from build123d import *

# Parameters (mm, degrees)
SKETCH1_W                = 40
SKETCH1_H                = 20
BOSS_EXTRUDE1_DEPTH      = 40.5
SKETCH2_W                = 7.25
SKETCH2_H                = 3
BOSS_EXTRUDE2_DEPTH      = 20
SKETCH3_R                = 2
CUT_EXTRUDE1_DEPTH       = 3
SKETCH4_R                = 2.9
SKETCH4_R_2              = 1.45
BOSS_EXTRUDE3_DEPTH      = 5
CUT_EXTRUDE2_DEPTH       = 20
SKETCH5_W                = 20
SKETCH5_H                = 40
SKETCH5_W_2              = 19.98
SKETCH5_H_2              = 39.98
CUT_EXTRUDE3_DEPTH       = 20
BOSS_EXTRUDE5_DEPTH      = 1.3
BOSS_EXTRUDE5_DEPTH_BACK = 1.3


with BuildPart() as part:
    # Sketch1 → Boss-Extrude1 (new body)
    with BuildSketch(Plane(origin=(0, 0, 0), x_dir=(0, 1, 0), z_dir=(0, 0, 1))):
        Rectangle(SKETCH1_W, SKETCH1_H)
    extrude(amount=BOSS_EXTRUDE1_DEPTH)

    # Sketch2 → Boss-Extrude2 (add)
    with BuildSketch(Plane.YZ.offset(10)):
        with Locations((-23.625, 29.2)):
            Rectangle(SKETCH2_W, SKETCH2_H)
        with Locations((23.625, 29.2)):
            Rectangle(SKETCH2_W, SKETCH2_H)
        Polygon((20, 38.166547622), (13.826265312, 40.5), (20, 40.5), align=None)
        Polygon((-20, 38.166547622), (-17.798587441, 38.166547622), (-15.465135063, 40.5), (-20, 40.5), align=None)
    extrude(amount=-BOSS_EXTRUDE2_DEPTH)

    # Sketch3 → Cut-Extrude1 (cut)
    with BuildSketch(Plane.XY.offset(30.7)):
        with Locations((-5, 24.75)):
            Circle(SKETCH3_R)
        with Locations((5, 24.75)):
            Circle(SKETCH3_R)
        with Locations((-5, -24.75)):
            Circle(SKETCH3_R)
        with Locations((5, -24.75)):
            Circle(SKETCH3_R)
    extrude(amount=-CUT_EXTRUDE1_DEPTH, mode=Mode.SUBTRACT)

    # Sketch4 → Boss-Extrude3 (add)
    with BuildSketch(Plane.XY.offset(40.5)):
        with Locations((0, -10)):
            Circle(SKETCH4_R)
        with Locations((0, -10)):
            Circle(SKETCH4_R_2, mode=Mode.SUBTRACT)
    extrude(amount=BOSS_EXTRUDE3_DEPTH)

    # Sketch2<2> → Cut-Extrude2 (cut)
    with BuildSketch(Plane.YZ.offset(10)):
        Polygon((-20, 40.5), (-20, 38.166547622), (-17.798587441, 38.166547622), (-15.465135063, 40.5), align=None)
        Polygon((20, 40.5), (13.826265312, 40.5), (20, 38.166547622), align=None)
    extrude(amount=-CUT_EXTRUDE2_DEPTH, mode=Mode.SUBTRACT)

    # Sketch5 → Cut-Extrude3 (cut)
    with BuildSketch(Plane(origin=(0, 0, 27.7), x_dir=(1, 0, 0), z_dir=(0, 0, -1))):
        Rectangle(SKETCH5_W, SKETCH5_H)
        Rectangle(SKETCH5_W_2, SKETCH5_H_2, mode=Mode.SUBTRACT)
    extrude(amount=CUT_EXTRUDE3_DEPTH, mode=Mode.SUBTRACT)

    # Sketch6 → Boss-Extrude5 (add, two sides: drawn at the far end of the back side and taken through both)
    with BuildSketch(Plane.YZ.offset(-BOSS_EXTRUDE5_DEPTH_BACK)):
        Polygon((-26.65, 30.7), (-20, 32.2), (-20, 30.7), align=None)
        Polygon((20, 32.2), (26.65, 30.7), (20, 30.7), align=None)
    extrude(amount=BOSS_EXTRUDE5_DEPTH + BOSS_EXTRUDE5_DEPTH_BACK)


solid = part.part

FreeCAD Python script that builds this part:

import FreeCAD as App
import Part
import Sketcher
from FreeCAD import Vector
Q = App.Units.Quantity

doc = App.newDocument("Part")
body = doc.addObject("PartDesign::Body", "Body")

# Sketch on XY plane
sketch1 = body.newObject("Sketcher::SketchObject", "Sketch")
sketch1.AttachmentSupport = (doc.getObject("XY_Plane"), [""])
sketch1.MapMode = "FlatFace"
sketch1.addGeometry([
    Part.LineSegment(Vector(-10, -20, 0), Vector(10, -20, 0)),
    Part.LineSegment(Vector(10, -20, 0), Vector(10, 20, 0)),
    Part.LineSegment(Vector(10, 20, 0), Vector(-10, 20, 0)),
    Part.LineSegment(Vector(-10, 20, 0), Vector(-10, -20, 0)),
], False)
sketch1.addConstraint([
    Sketcher.Constraint("Coincident", 0, 2, 1, 1),
    Sketcher.Constraint("Coincident", 1, 2, 2, 1),
    Sketcher.Constraint("Coincident", 2, 2, 3, 1),
    Sketcher.Constraint("Coincident", 3, 2, 0, 1),
    Sketcher.Constraint("Horizontal", 0),
    Sketcher.Constraint("Vertical", 1),
    Sketcher.Constraint("Horizontal", 2),
    Sketcher.Constraint("Vertical", 3),
    Sketcher.Constraint("Symmetric", 0, 2, 2, 2, -1, 1),
    Sketcher.Constraint("DistanceX", 0, 1, 0, 2, 20.0),
    Sketcher.Constraint("DistanceY", 1, 1, 1, 2, 40.0),
])
pad1 = body.newObject("PartDesign::Pad", "Pad")
pad1.Profile = sketch1
pad1.Length = 40.5

# Sketch on YZ plane
sketch2 = body.newObject("Sketcher::SketchObject", "Sketch001")
sketch2.AttachmentSupport = (doc.getObject("YZ_Plane"), [""])
sketch2.MapMode = "FlatFace"
sketch2.AttachmentOffset = App.Placement(Vector(0, 0, 10), App.Rotation())
sketch2.addGeometry([
    Part.LineSegment(Vector(-27.2, 30.7, 0), Vector(-27.2, 27.7, 0)),  # 0
    Part.LineSegment(Vector(-27.2, 27.7, 0), Vector(-20, 27.7, 0)),  # 1
    Part.LineSegment(Vector(-20, 27.7, 0), Vector(-20, 30.7, 0)),  # 2
    Part.LineSegment(Vector(-20, 30.7, 0), Vector(-27.2, 30.7, 0)),  # 3
    Part.LineSegment(Vector(20, 30.7, 0), Vector(20, 27.7, 0)),  # 4
    Part.LineSegment(Vector(20, 27.7, 0), Vector(27.2, 27.7, 0)),  # 5
    Part.LineSegment(Vector(27.2, 27.7, 0), Vector(27.2, 30.7, 0)),  # 6
    Part.LineSegment(Vector(27.2, 30.7, 0), Vector(20, 30.7, 0)),  # 7
    Part.LineSegment(Vector(13.8, 40.5, 0), Vector(20, 38.2, 0)),  # 8
    Part.LineSegment(Vector(20, 38.2, 0), Vector(20, 40.5, 0)),  # 9
    Part.LineSegment(Vector(20, 40.5, 0), Vector(13.8, 40.5, 0)),  # 10
    Part.LineSegment(Vector(-20, 38.2, 0), Vector(-17.8, 38.2, 0)),  # 11
    Part.LineSegment(Vector(-17.8, 38.2, 0), Vector(-15.5, 40.5, 0)),  # 12
    Part.LineSegment(Vector(-15.5, 40.5, 0), Vector(-20, 40.5, 0)),  # 13
    Part.LineSegment(Vector(-20, 40.5, 0), Vector(-20, 38.2, 0)),  # 14
], False)
sketch2.addConstraint([
    Sketcher.Constraint("Coincident", 0, 2, 1, 1),
    Sketcher.Constraint("Coincident", 1, 2, 2, 1),
    Sketcher.Constraint("Coincident", 2, 2, 3, 1),
    Sketcher.Constraint("Coincident", 3, 2, 0, 1),
    Sketcher.Constraint("Coincident", 4, 2, 5, 1),
    Sketcher.Constraint("Coincident", 5, 2, 6, 1),
    Sketcher.Constraint("Coincident", 6, 2, 7, 1),
    Sketcher.Constraint("Coincident", 7, 2, 4, 1),
    Sketcher.Constraint("Coincident", 8, 2, 9, 1),
    Sketcher.Constraint("Coincident", 9, 2, 10, 1),
    Sketcher.Constraint("Coincident", 10, 2, 8, 1),
    Sketcher.Constraint("Coincident", 11, 2, 12, 1),
    Sketcher.Constraint("Coincident", 12, 2, 13, 1),
    Sketcher.Constraint("Coincident", 13, 2, 14, 1),
    Sketcher.Constraint("Coincident", 14, 2, 11, 1),
    Sketcher.Constraint("Vertical", 0),
    Sketcher.Constraint("Horizontal", 1),
    Sketcher.Constraint("Vertical", 2),
    Sketcher.Constraint("Horizontal", 3),
    Sketcher.Constraint("Vertical", 4),
    Sketcher.Constraint("Horizontal", 5),
    Sketcher.Constraint("Vertical", 6),
    Sketcher.Constraint("Horizontal", 7),
    Sketcher.Constraint("Vertical", 9),
    Sketcher.Constraint("Horizontal", 10),
    Sketcher.Constraint("Horizontal", 11),
    Sketcher.Constraint("Horizontal", 13),
    Sketcher.Constraint("Vertical", 14),
    Sketcher.Constraint("Symmetric", 1, 2, 4, 2, -2),
    Sketcher.Constraint("Symmetric", 3, 2, 6, 2, -2),
    Sketcher.Constraint("Symmetric", 9, 2, 13, 2, -2),
    Sketcher.Constraint("Horizontal", 8, 2, 11, 2),
    Sketcher.Constraint("Vertical", 7, 2, 8, 2),
    Sketcher.Constraint("DistanceY", 0, 2, 0, 1, 3.0),
    Sketcher.Constraint("Angle", 12, Q("45 deg")),
    Sketcher.Constraint("DistanceX", 1, 2, -1, 1, 20.0),
    Sketcher.Constraint("Distance", 8, 6.6),
    Sketcher.Constraint("Distance", 12, 3.3),
    Sketcher.Constraint("DistanceX", 1, 1, 1, 2, 7.25),
    Sketcher.Constraint("DistanceY", -1, 1, 0, 2, 27.7),
    Sketcher.Constraint("DistanceY", -1, 1, 9, 2, 40.5),
    Sketcher.Constraint("DistanceX", 11, 1, 11, 2, 2.201413),
])
pad2 = body.newObject("PartDesign::Pad", "Pad001")
pad2.Profile = sketch2
pad2.Length = 20
pad2.Reversed = True

# Sketch on XY plane
sketch3 = body.newObject("Sketcher::SketchObject", "Sketch002")
sketch3.AttachmentSupport = (doc.getObject("XY_Plane"), [""])
sketch3.MapMode = "FlatFace"
sketch3.AttachmentOffset = App.Placement(Vector(0, 0, 30.7), App.Rotation())
sketch3.addGeometry([
    Part.Circle(Vector(-5, 24.8, 0), Vector(0, 0, 1), 2),
    Part.Circle(Vector(5, 24.8, 0), Vector(0, 0, 1), 2),
    Part.Circle(Vector(-5, -24.8, 0), Vector(0, 0, 1), 2),
    Part.Circle(Vector(5, -24.8, 0), Vector(0, 0, 1), 2),
], False)
sketch3.addConstraint([
    Sketcher.Constraint("Equal", 0, 1),
    Sketcher.Constraint("Equal", 1, 2),
    Sketcher.Constraint("Equal", 2, 3),
    Sketcher.Constraint("Symmetric", 1, 3, 2, 3, -1, 1),
    Sketcher.Constraint("Symmetric", 0, 3, 3, 3, -1, 1),
    Sketcher.Constraint("Symmetric", 0, 3, 1, 3, -2),
    Sketcher.Constraint("Diameter", 0, 4.0),
    Sketcher.Constraint("DistanceX", 0, 3, -1, 1, 5.0),
    Sketcher.Constraint("DistanceY", 2, 3, 0, 3, 49.5),
])
pocket1 = body.newObject("PartDesign::Pocket", "Pocket")
pocket1.Profile = sketch3
pocket1.Length = 3

# Sketch on XY plane
sketch4 = body.newObject("Sketcher::SketchObject", "Sketch003")
sketch4.AttachmentSupport = (doc.getObject("XY_Plane"), [""])
sketch4.MapMode = "FlatFace"
sketch4.AttachmentOffset = App.Placement(Vector(0, 0, 40.5), App.Rotation())
sketch4.addGeometry([
    Part.Circle(Vector(0, -10, 0), Vector(0, 0, 1), 2.9),
    Part.Circle(Vector(0, -10, 0), Vector(0, 0, 1), 1.4),
], False)
sketch4.addConstraint([
    Sketcher.Constraint("Coincident", 1, 3, 0, 3),
    Sketcher.Constraint("PointOnObject", 0, 3, -2),
    Sketcher.Constraint("Diameter", 0, 5.8),
    Sketcher.Constraint("Diameter", 1, 2.9),
    Sketcher.Constraint("DistanceY", 0, 3, -1, 1, 10.0),
])
pad3 = body.newObject("PartDesign::Pad", "Pad002")
pad3.Profile = sketch4
pad3.Length = 5

# Sketch on YZ plane
sketch5 = body.newObject("Sketcher::SketchObject", "Sketch004")
sketch5.AttachmentSupport = (doc.getObject("YZ_Plane"), [""])
sketch5.MapMode = "FlatFace"
sketch5.AttachmentOffset = App.Placement(Vector(0, 0, 10), App.Rotation())
sketch5.addGeometry([
    Part.LineSegment(Vector(-20, 40.5, 0), Vector(-20, 38.2, 0)),  # 0
    Part.LineSegment(Vector(-20, 38.2, 0), Vector(-17.8, 38.2, 0)),  # 1
    Part.LineSegment(Vector(-17.8, 38.2, 0), Vector(-15.5, 40.5, 0)),  # 2
    Part.LineSegment(Vector(-15.5, 40.5, 0), Vector(-20, 40.5, 0)),  # 3
    Part.LineSegment(Vector(20, 40.5, 0), Vector(13.8, 40.5, 0)),  # 4
    Part.LineSegment(Vector(13.8, 40.5, 0), Vector(20, 38.2, 0)),  # 5
    Part.LineSegment(Vector(20, 38.2, 0), Vector(20, 40.5, 0)),  # 6
], False)
sketch5.addConstraint([
    Sketcher.Constraint("Coincident", 0, 2, 1, 1),
    Sketcher.Constraint("Coincident", 1, 2, 2, 1),
    Sketcher.Constraint("Coincident", 2, 2, 3, 1),
    Sketcher.Constraint("Coincident", 3, 2, 0, 1),
    Sketcher.Constraint("Coincident", 4, 2, 5, 1),
    Sketcher.Constraint("Coincident", 5, 2, 6, 1),
    Sketcher.Constraint("Coincident", 6, 2, 4, 1),
    Sketcher.Constraint("Vertical", 0),
    Sketcher.Constraint("Horizontal", 1),
    Sketcher.Constraint("Horizontal", 3),
    Sketcher.Constraint("Horizontal", 4),
    Sketcher.Constraint("Vertical", 6),
    Sketcher.Constraint("Symmetric", 0, 2, 5, 2, -2),
    Sketcher.Constraint("Horizontal", 3, 2, 4, 2),
    Sketcher.Constraint("Angle", 2, Q("45 deg")),
    Sketcher.Constraint("DistanceX", 0, 2, -1, 1, 20.0),
    Sketcher.Constraint("Distance", 2, 3.3),
    Sketcher.Constraint("Distance", 5, 6.6),
    Sketcher.Constraint("DistanceY", -1, 1, 2, 2, 40.5),
    Sketcher.Constraint("DistanceX", 2, 2, 4, 2, 29.2914),
])
pocket2 = body.newObject("PartDesign::Pocket", "Pocket001")
pocket2.Profile = sketch5
pocket2.Length = 20

# Sketch on XY plane
sketch6 = body.newObject("Sketcher::SketchObject", "Sketch005")
sketch6.AttachmentSupport = (doc.getObject("XY_Plane"), [""])
sketch6.MapMode = "FlatFace"
sketch6.AttachmentOffset = App.Placement(Vector(0, 0, 27.7), App.Rotation())
sketch6.addGeometry([
    Part.LineSegment(Vector(-10, -20, 0), Vector(-10, 20, 0)),  # 0
    Part.LineSegment(Vector(-10, 20, 0), Vector(10, 20, 0)),  # 1
    Part.LineSegment(Vector(10, 20, 0), Vector(10, -20, 0)),  # 2
    Part.LineSegment(Vector(10, -20, 0), Vector(-10, -20, 0)),  # 3
    Part.LineSegment(Vector(10, 20, 0), Vector(-10, 20, 0)),  # 4
    Part.LineSegment(Vector(-10, 20, 0), Vector(-10, -20, 0)),  # 5
    Part.LineSegment(Vector(-10, -20, 0), Vector(10, -20, 0)),  # 6
    Part.LineSegment(Vector(10, -20, 0), Vector(10, 20, 0)),  # 7
], False)
sketch6.addConstraint([
    Sketcher.Constraint("Coincident", 0, 2, 1, 1),
    Sketcher.Constraint("Coincident", 1, 2, 2, 1),
    Sketcher.Constraint("Coincident", 2, 2, 3, 1),
    Sketcher.Constraint("Coincident", 3, 2, 0, 1),
    Sketcher.Constraint("Coincident", 4, 2, 5, 1),
    Sketcher.Constraint("Coincident", 5, 2, 6, 1),
    Sketcher.Constraint("Coincident", 6, 2, 7, 1),
    Sketcher.Constraint("Coincident", 7, 2, 4, 1),
    Sketcher.Constraint("Vertical", 0),
    Sketcher.Constraint("Horizontal", 1),
    Sketcher.Constraint("Vertical", 2),
    Sketcher.Constraint("Horizontal", 3),
    Sketcher.Constraint("Horizontal", 4),
    Sketcher.Constraint("Vertical", 5),
    Sketcher.Constraint("Horizontal", 6),
    Sketcher.Constraint("Vertical", 7),
    Sketcher.Constraint("Symmetric", 0, 2, 2, 2, -1, 1),
    Sketcher.Constraint("Symmetric", 4, 2, 6, 2, -1, 1),
    Sketcher.Constraint("DistanceX", 1, 1, 1, 2, 20.0),
    Sketcher.Constraint("DistanceY", 0, 1, 0, 2, 40.0),
    Sketcher.Constraint("DistanceX", 4, 2, 4, 1, 19.98),
    Sketcher.Constraint("DistanceY", 5, 2, 5, 1, 39.98),
])
pocket3 = body.newObject("PartDesign::Pocket", "Pocket002")
pocket3.Profile = sketch6
pocket3.Length = 20

# Sketch on YZ plane
sketch7 = body.newObject("Sketcher::SketchObject", "Sketch006")
sketch7.AttachmentSupport = (doc.getObject("YZ_Plane"), [""])
sketch7.MapMode = "FlatFace"
sketch7.addGeometry([
    Part.LineSegment(Vector(-20, 32.2, 0), Vector(-26.6, 30.7, 0)),  # 0
    Part.LineSegment(Vector(-26.6, 30.7, 0), Vector(-20, 30.7, 0)),  # 1
    Part.LineSegment(Vector(-20, 30.7, 0), Vector(-20, 32.2, 0)),  # 2
    Part.LineSegment(Vector(26.6, 30.7, 0), Vector(20, 32.2, 0)),  # 3
    Part.LineSegment(Vector(20, 32.2, 0), Vector(20, 30.7, 0)),  # 4
    Part.LineSegment(Vector(20, 30.7, 0), Vector(26.6, 30.7, 0)),  # 5
], False)
sketch7.addConstraint([
    Sketcher.Constraint("Coincident", 0, 2, 1, 1),
    Sketcher.Constraint("Coincident", 1, 2, 2, 1),
    Sketcher.Constraint("Coincident", 2, 2, 0, 1),
    Sketcher.Constraint("Coincident", 3, 2, 4, 1),
    Sketcher.Constraint("Coincident", 4, 2, 5, 1),
    Sketcher.Constraint("Coincident", 5, 2, 3, 1),
    Sketcher.Constraint("Horizontal", 1),
    Sketcher.Constraint("Vertical", 2),
    Sketcher.Constraint("Vertical", 4),
    Sketcher.Constraint("Horizontal", 5),
    Sketcher.Constraint("Symmetric", 2, 2, 3, 2, -2),
    Sketcher.Constraint("Symmetric", 0, 2, 5, 2, -2),
    Sketcher.Constraint("DistanceY", 2, 1, 2, 2, 1.5),
    Sketcher.Constraint("DistanceX", 1, 2, -1, 1, 20.0),
    Sketcher.Constraint("DistanceX", 1, 1, 1, 2, 6.65),
    Sketcher.Constraint("DistanceY", -1, 1, 0, 2, 30.7),
])
pad4 = body.newObject("PartDesign::Pad", "Pad003")
pad4.Profile = sketch7
pad4.Type = "TwoLengths"
pad4.Length = 1.3
pad4.Length2 = 1.3

doc.recompute()
